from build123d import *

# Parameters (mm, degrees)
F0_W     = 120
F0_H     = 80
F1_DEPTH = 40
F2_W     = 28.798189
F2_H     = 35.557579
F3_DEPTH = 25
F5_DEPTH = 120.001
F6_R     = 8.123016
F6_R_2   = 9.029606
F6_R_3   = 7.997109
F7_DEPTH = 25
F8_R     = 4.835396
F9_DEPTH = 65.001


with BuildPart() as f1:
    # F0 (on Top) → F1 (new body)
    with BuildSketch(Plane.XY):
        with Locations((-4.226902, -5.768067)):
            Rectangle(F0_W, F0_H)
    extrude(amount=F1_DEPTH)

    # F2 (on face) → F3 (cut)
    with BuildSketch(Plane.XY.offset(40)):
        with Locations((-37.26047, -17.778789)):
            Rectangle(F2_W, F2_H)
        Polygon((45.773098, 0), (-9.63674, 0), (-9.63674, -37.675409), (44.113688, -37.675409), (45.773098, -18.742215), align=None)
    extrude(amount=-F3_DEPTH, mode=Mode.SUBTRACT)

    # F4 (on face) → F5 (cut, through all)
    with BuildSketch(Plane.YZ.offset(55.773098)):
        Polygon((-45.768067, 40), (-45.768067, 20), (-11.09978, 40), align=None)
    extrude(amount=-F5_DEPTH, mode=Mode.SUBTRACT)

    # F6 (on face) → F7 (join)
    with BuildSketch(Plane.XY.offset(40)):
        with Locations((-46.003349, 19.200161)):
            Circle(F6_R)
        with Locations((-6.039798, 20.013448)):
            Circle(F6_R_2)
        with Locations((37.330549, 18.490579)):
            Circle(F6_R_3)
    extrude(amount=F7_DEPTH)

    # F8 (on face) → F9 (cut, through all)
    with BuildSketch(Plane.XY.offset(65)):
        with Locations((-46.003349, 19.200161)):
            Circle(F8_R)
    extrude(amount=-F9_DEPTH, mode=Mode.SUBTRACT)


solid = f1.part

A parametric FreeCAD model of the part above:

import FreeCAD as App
import Part
import Sketcher
from FreeCAD import Vector


def add_polygon(sketch, points):
    """Adds a closed chain of lines whose ends are joined by coincident constraints."""
    first, n = sketch.GeometryCount, len(points)
    for a, b in zip(points, points[1:] + points[:1]):
        sketch.addGeometry(Part.LineSegment(App.Vector(*a, 0), App.Vector(*b, 0)), False)
    for i in range(n):
        sketch.addConstraint(Sketcher.Constraint("Coincident", first + i, 2, first + (i + 1) % n, 1))

doc = App.newDocument("Part")
body = doc.addObject("PartDesign::Body", "Body")

# Sketch on XY plane
sketch1 = body.newObject("Sketcher::SketchObject", "Sketch")
sketch1.AttachmentSupport = (doc.getObject("XY_Plane"), [""])
sketch1.MapMode = "FlatFace"
add_polygon(sketch1, [(-64, 34), (-64, -46), (56, -46), (56, 34)])  # lines 0-3
sketch1.addConstraint(Sketcher.Constraint("Vertical", 0))
sketch1.addConstraint(Sketcher.Constraint("Horizontal", 1))
sketch1.addConstraint(Sketcher.Constraint("Vertical", 2))
sketch1.addConstraint(Sketcher.Constraint("Horizontal", 3))
sketch1.addConstraint(Sketcher.Constraint("DistanceX", 1, 1, 1, 2, 120.0))
sketch1.addConstraint(Sketcher.Constraint("DistanceY", 0, 2, 0, 1, 80.0))
sketch1.addConstraint(Sketcher.Constraint("DistanceX", 0, 2, -1, 1, 64.226902))
sketch1.addConstraint(Sketcher.Constraint("DistanceY", 0, 2, -1, 1, 45.768067))
pad1 = body.newObject("PartDesign::Pad", "Pad")
pad1.Profile = sketch1
pad1.Length = 40

# Sketch on XY plane
sketch2 = body.newObject("Sketcher::SketchObject", "Sketch001")
sketch2.AttachmentSupport = (doc.getObject("XY_Plane"), [""])
sketch2.MapMode = "FlatFace"
sketch2.AttachmentOffset = App.Placement(Vector(0, 0, 40), App.Rotation())
add_polygon(sketch2, [(-52, 0), (-52, -36), (-23, -36), (-23, 0)])  # lines 0-3
add_polygon(sketch2, [(46, 0), (-10, 0), (-10, -38), (44, -38), (46, -19)])  # lines 4-8
sketch2.addConstraint(Sketcher.Constraint("Vertical", 0))
sketch2.addConstraint(Sketcher.Constraint("Horizontal", 1))
sketch2.addConstraint(Sketcher.Constraint("Vertical", 2))
sketch2.addConstraint(Sketcher.Constraint("Horizontal", 3))
sketch2.addConstraint(Sketcher.Constraint("Horizontal", 4))
sketch2.addConstraint(Sketcher.Constraint("Vertical", 5))
sketch2.addConstraint(Sketcher.Constraint("Horizontal", 6))
sketch2.addConstraint(Sketcher.Constraint("Vertical", 8))
sketch2.addConstraint(Sketcher.Constraint("PointOnObject", 2, 2, -1))
sketch2.addConstraint(Sketcher.Constraint("PointOnObject", 4, 2, -1))
sketch2.addConstraint(Sketcher.Constraint("DistanceX", 1, 1, 1, 2, 28.798189))
sketch2.addConstraint(Sketcher.Constraint("DistanceY", 0, 2, 0, 1, 35.557579))
sketch2.addConstraint(Sketcher.Constraint("DistanceY", 5, 2, 5, 1, 37.675409))
sketch2.addConstraint(Sketcher.Constraint("DistanceX", 4, 2, 4, 1, 55.409838))
sketch2.addConstraint(Sketcher.Constraint("DistanceX", 6, 1, 6, 2, 53.750428))
sketch2.addConstraint(Sketcher.Constraint("DistanceY", 8, 1, 8, 2, 18.742215))
sketch2.addConstraint(Sketcher.Constraint("DistanceX", 4, 2, -1, 1, 9.63674))
sketch2.addConstraint(Sketcher.Constraint("DistanceX", 0, 2, -1, 1, 51.659565))
pocket1 = body.newObject("PartDesign::Pocket", "Pocket")
pocket1.Profile = sketch2
pocket1.Length = 25

# Sketch on YZ plane
sketch3 = body.newObject("Sketcher::SketchObject", "Sketch002")
sketch3.AttachmentSupport = (doc.getObject("YZ_Plane"), [""])
sketch3.MapMode = "FlatFace"
sketch3.AttachmentOffset = App.Placement(Vector(0, 0, 55.773098), App.Rotation())
add_polygon(sketch3, [(-46, 40), (-46, 20), (-11, 40)])  # lines 0-2
sketch3.addConstraint(Sketcher.Constraint("Vertical", 0))
sketch3.addConstraint(Sketcher.Constraint("Horizontal", 2))
sketch3.addConstraint(Sketcher.Constraint("DistanceY", 0, 2, 0, 1, 20.0))
sketch3.addConstraint(Sketcher.Constraint("DistanceY", -1, 1, 0, 2, 20.0))
sketch3.addConstraint(Sketcher.Constraint("Distance", 1, 40.02362))
sketch3.addConstraint(Sketcher.Constraint("DistanceX", 1, 2, -1, 1, 11.09978))
pocket2 = body.newObject("PartDesign::Pocket", "Pocket001")
pocket2.Profile = sketch3
pocket2.Type = "ThroughAll"

# Sketch on XY plane
sketch4 = body.newObject("Sketcher::SketchObject", "Sketch003")
sketch4.AttachmentSupport = (doc.getObject("XY_Plane"), [""])
sketch4.MapMode = "FlatFace"
sketch4.AttachmentOffset = App.Placement(Vector(0, 0, 40), App.Rotation())
sketch4.addGeometry(Part.Circle(Vector(-46, 19, 0), Vector(0, 0, 1), 8), False)
sketch4.addGeometry(Part.Circle(Vector(-6, 20, 0), Vector(0, 0, 1), 9), False)
sketch4.addGeometry(Part.Circle(Vector(37, 18, 0), Vector(0, 0, 1), 8), False)
sketch4.addConstraint(Sketcher.Constraint("Diameter", 0, 16.246032))
sketch4.addConstraint(Sketcher.Constraint("Diameter", 1, 18.059212))
sketch4.addConstraint(Sketcher.Constraint("Diameter", 2, 15.994218))
sketch4.addConstraint(Sketcher.Constraint("DistanceX", 1, 3, -1, 1, 6.039798))
sketch4.addConstraint(Sketcher.Constraint("DistanceX", 0, 3, 2, 3, 83.333898))
sketch4.addConstraint(Sketcher.Constraint("DistanceX", 0, 3, -1, 1, 46.003349))
sketch4.addConstraint(Sketcher.Constraint("DistanceY", -1, 1, 0, 3, 19.200161))
sketch4.addConstraint(Sketcher.Constraint("DistanceY", -1, 1, 1, 3, 20.013448))
sketch4.addConstraint(Sketcher.Constraint("DistanceY", -1, 1, 2, 3, 18.490579))
pad2 = body.newObject("PartDesign::Pad", "Pad001")
pad2.Profile = sketch4
pad2.Length = 25

# Sketch on XY plane
sketch5 = body.newObject("Sketcher::SketchObject", "Sketch004")
sketch5.AttachmentSupport = (doc.getObject("XY_Plane"), [""])
sketch5.MapMode = "FlatFace"
sketch5.AttachmentOffset = App.Placement(Vector(0, 0, 65), App.Rotation())
sketch5.addGeometry(Part.Circle(Vector(-46, 19.2, 0), Vector(0, 0, 1), 4.8), False)
sketch5.addConstraint(Sketcher.Constraint("Diameter", 0, 9.670792))
sketch5.addConstraint(Sketcher.Constraint("DistanceX", 0, 3, -1, 1, 46.003349))
sketch5.addConstraint(Sketcher.Constraint("DistanceY", -1, 1, 0, 3, 19.200161))
pocket3 = body.newObject("PartDesign::Pocket", "Pocket002")
pocket3.Profile = sketch5
pocket3.Type = "ThroughAll"

doc.recompute()
